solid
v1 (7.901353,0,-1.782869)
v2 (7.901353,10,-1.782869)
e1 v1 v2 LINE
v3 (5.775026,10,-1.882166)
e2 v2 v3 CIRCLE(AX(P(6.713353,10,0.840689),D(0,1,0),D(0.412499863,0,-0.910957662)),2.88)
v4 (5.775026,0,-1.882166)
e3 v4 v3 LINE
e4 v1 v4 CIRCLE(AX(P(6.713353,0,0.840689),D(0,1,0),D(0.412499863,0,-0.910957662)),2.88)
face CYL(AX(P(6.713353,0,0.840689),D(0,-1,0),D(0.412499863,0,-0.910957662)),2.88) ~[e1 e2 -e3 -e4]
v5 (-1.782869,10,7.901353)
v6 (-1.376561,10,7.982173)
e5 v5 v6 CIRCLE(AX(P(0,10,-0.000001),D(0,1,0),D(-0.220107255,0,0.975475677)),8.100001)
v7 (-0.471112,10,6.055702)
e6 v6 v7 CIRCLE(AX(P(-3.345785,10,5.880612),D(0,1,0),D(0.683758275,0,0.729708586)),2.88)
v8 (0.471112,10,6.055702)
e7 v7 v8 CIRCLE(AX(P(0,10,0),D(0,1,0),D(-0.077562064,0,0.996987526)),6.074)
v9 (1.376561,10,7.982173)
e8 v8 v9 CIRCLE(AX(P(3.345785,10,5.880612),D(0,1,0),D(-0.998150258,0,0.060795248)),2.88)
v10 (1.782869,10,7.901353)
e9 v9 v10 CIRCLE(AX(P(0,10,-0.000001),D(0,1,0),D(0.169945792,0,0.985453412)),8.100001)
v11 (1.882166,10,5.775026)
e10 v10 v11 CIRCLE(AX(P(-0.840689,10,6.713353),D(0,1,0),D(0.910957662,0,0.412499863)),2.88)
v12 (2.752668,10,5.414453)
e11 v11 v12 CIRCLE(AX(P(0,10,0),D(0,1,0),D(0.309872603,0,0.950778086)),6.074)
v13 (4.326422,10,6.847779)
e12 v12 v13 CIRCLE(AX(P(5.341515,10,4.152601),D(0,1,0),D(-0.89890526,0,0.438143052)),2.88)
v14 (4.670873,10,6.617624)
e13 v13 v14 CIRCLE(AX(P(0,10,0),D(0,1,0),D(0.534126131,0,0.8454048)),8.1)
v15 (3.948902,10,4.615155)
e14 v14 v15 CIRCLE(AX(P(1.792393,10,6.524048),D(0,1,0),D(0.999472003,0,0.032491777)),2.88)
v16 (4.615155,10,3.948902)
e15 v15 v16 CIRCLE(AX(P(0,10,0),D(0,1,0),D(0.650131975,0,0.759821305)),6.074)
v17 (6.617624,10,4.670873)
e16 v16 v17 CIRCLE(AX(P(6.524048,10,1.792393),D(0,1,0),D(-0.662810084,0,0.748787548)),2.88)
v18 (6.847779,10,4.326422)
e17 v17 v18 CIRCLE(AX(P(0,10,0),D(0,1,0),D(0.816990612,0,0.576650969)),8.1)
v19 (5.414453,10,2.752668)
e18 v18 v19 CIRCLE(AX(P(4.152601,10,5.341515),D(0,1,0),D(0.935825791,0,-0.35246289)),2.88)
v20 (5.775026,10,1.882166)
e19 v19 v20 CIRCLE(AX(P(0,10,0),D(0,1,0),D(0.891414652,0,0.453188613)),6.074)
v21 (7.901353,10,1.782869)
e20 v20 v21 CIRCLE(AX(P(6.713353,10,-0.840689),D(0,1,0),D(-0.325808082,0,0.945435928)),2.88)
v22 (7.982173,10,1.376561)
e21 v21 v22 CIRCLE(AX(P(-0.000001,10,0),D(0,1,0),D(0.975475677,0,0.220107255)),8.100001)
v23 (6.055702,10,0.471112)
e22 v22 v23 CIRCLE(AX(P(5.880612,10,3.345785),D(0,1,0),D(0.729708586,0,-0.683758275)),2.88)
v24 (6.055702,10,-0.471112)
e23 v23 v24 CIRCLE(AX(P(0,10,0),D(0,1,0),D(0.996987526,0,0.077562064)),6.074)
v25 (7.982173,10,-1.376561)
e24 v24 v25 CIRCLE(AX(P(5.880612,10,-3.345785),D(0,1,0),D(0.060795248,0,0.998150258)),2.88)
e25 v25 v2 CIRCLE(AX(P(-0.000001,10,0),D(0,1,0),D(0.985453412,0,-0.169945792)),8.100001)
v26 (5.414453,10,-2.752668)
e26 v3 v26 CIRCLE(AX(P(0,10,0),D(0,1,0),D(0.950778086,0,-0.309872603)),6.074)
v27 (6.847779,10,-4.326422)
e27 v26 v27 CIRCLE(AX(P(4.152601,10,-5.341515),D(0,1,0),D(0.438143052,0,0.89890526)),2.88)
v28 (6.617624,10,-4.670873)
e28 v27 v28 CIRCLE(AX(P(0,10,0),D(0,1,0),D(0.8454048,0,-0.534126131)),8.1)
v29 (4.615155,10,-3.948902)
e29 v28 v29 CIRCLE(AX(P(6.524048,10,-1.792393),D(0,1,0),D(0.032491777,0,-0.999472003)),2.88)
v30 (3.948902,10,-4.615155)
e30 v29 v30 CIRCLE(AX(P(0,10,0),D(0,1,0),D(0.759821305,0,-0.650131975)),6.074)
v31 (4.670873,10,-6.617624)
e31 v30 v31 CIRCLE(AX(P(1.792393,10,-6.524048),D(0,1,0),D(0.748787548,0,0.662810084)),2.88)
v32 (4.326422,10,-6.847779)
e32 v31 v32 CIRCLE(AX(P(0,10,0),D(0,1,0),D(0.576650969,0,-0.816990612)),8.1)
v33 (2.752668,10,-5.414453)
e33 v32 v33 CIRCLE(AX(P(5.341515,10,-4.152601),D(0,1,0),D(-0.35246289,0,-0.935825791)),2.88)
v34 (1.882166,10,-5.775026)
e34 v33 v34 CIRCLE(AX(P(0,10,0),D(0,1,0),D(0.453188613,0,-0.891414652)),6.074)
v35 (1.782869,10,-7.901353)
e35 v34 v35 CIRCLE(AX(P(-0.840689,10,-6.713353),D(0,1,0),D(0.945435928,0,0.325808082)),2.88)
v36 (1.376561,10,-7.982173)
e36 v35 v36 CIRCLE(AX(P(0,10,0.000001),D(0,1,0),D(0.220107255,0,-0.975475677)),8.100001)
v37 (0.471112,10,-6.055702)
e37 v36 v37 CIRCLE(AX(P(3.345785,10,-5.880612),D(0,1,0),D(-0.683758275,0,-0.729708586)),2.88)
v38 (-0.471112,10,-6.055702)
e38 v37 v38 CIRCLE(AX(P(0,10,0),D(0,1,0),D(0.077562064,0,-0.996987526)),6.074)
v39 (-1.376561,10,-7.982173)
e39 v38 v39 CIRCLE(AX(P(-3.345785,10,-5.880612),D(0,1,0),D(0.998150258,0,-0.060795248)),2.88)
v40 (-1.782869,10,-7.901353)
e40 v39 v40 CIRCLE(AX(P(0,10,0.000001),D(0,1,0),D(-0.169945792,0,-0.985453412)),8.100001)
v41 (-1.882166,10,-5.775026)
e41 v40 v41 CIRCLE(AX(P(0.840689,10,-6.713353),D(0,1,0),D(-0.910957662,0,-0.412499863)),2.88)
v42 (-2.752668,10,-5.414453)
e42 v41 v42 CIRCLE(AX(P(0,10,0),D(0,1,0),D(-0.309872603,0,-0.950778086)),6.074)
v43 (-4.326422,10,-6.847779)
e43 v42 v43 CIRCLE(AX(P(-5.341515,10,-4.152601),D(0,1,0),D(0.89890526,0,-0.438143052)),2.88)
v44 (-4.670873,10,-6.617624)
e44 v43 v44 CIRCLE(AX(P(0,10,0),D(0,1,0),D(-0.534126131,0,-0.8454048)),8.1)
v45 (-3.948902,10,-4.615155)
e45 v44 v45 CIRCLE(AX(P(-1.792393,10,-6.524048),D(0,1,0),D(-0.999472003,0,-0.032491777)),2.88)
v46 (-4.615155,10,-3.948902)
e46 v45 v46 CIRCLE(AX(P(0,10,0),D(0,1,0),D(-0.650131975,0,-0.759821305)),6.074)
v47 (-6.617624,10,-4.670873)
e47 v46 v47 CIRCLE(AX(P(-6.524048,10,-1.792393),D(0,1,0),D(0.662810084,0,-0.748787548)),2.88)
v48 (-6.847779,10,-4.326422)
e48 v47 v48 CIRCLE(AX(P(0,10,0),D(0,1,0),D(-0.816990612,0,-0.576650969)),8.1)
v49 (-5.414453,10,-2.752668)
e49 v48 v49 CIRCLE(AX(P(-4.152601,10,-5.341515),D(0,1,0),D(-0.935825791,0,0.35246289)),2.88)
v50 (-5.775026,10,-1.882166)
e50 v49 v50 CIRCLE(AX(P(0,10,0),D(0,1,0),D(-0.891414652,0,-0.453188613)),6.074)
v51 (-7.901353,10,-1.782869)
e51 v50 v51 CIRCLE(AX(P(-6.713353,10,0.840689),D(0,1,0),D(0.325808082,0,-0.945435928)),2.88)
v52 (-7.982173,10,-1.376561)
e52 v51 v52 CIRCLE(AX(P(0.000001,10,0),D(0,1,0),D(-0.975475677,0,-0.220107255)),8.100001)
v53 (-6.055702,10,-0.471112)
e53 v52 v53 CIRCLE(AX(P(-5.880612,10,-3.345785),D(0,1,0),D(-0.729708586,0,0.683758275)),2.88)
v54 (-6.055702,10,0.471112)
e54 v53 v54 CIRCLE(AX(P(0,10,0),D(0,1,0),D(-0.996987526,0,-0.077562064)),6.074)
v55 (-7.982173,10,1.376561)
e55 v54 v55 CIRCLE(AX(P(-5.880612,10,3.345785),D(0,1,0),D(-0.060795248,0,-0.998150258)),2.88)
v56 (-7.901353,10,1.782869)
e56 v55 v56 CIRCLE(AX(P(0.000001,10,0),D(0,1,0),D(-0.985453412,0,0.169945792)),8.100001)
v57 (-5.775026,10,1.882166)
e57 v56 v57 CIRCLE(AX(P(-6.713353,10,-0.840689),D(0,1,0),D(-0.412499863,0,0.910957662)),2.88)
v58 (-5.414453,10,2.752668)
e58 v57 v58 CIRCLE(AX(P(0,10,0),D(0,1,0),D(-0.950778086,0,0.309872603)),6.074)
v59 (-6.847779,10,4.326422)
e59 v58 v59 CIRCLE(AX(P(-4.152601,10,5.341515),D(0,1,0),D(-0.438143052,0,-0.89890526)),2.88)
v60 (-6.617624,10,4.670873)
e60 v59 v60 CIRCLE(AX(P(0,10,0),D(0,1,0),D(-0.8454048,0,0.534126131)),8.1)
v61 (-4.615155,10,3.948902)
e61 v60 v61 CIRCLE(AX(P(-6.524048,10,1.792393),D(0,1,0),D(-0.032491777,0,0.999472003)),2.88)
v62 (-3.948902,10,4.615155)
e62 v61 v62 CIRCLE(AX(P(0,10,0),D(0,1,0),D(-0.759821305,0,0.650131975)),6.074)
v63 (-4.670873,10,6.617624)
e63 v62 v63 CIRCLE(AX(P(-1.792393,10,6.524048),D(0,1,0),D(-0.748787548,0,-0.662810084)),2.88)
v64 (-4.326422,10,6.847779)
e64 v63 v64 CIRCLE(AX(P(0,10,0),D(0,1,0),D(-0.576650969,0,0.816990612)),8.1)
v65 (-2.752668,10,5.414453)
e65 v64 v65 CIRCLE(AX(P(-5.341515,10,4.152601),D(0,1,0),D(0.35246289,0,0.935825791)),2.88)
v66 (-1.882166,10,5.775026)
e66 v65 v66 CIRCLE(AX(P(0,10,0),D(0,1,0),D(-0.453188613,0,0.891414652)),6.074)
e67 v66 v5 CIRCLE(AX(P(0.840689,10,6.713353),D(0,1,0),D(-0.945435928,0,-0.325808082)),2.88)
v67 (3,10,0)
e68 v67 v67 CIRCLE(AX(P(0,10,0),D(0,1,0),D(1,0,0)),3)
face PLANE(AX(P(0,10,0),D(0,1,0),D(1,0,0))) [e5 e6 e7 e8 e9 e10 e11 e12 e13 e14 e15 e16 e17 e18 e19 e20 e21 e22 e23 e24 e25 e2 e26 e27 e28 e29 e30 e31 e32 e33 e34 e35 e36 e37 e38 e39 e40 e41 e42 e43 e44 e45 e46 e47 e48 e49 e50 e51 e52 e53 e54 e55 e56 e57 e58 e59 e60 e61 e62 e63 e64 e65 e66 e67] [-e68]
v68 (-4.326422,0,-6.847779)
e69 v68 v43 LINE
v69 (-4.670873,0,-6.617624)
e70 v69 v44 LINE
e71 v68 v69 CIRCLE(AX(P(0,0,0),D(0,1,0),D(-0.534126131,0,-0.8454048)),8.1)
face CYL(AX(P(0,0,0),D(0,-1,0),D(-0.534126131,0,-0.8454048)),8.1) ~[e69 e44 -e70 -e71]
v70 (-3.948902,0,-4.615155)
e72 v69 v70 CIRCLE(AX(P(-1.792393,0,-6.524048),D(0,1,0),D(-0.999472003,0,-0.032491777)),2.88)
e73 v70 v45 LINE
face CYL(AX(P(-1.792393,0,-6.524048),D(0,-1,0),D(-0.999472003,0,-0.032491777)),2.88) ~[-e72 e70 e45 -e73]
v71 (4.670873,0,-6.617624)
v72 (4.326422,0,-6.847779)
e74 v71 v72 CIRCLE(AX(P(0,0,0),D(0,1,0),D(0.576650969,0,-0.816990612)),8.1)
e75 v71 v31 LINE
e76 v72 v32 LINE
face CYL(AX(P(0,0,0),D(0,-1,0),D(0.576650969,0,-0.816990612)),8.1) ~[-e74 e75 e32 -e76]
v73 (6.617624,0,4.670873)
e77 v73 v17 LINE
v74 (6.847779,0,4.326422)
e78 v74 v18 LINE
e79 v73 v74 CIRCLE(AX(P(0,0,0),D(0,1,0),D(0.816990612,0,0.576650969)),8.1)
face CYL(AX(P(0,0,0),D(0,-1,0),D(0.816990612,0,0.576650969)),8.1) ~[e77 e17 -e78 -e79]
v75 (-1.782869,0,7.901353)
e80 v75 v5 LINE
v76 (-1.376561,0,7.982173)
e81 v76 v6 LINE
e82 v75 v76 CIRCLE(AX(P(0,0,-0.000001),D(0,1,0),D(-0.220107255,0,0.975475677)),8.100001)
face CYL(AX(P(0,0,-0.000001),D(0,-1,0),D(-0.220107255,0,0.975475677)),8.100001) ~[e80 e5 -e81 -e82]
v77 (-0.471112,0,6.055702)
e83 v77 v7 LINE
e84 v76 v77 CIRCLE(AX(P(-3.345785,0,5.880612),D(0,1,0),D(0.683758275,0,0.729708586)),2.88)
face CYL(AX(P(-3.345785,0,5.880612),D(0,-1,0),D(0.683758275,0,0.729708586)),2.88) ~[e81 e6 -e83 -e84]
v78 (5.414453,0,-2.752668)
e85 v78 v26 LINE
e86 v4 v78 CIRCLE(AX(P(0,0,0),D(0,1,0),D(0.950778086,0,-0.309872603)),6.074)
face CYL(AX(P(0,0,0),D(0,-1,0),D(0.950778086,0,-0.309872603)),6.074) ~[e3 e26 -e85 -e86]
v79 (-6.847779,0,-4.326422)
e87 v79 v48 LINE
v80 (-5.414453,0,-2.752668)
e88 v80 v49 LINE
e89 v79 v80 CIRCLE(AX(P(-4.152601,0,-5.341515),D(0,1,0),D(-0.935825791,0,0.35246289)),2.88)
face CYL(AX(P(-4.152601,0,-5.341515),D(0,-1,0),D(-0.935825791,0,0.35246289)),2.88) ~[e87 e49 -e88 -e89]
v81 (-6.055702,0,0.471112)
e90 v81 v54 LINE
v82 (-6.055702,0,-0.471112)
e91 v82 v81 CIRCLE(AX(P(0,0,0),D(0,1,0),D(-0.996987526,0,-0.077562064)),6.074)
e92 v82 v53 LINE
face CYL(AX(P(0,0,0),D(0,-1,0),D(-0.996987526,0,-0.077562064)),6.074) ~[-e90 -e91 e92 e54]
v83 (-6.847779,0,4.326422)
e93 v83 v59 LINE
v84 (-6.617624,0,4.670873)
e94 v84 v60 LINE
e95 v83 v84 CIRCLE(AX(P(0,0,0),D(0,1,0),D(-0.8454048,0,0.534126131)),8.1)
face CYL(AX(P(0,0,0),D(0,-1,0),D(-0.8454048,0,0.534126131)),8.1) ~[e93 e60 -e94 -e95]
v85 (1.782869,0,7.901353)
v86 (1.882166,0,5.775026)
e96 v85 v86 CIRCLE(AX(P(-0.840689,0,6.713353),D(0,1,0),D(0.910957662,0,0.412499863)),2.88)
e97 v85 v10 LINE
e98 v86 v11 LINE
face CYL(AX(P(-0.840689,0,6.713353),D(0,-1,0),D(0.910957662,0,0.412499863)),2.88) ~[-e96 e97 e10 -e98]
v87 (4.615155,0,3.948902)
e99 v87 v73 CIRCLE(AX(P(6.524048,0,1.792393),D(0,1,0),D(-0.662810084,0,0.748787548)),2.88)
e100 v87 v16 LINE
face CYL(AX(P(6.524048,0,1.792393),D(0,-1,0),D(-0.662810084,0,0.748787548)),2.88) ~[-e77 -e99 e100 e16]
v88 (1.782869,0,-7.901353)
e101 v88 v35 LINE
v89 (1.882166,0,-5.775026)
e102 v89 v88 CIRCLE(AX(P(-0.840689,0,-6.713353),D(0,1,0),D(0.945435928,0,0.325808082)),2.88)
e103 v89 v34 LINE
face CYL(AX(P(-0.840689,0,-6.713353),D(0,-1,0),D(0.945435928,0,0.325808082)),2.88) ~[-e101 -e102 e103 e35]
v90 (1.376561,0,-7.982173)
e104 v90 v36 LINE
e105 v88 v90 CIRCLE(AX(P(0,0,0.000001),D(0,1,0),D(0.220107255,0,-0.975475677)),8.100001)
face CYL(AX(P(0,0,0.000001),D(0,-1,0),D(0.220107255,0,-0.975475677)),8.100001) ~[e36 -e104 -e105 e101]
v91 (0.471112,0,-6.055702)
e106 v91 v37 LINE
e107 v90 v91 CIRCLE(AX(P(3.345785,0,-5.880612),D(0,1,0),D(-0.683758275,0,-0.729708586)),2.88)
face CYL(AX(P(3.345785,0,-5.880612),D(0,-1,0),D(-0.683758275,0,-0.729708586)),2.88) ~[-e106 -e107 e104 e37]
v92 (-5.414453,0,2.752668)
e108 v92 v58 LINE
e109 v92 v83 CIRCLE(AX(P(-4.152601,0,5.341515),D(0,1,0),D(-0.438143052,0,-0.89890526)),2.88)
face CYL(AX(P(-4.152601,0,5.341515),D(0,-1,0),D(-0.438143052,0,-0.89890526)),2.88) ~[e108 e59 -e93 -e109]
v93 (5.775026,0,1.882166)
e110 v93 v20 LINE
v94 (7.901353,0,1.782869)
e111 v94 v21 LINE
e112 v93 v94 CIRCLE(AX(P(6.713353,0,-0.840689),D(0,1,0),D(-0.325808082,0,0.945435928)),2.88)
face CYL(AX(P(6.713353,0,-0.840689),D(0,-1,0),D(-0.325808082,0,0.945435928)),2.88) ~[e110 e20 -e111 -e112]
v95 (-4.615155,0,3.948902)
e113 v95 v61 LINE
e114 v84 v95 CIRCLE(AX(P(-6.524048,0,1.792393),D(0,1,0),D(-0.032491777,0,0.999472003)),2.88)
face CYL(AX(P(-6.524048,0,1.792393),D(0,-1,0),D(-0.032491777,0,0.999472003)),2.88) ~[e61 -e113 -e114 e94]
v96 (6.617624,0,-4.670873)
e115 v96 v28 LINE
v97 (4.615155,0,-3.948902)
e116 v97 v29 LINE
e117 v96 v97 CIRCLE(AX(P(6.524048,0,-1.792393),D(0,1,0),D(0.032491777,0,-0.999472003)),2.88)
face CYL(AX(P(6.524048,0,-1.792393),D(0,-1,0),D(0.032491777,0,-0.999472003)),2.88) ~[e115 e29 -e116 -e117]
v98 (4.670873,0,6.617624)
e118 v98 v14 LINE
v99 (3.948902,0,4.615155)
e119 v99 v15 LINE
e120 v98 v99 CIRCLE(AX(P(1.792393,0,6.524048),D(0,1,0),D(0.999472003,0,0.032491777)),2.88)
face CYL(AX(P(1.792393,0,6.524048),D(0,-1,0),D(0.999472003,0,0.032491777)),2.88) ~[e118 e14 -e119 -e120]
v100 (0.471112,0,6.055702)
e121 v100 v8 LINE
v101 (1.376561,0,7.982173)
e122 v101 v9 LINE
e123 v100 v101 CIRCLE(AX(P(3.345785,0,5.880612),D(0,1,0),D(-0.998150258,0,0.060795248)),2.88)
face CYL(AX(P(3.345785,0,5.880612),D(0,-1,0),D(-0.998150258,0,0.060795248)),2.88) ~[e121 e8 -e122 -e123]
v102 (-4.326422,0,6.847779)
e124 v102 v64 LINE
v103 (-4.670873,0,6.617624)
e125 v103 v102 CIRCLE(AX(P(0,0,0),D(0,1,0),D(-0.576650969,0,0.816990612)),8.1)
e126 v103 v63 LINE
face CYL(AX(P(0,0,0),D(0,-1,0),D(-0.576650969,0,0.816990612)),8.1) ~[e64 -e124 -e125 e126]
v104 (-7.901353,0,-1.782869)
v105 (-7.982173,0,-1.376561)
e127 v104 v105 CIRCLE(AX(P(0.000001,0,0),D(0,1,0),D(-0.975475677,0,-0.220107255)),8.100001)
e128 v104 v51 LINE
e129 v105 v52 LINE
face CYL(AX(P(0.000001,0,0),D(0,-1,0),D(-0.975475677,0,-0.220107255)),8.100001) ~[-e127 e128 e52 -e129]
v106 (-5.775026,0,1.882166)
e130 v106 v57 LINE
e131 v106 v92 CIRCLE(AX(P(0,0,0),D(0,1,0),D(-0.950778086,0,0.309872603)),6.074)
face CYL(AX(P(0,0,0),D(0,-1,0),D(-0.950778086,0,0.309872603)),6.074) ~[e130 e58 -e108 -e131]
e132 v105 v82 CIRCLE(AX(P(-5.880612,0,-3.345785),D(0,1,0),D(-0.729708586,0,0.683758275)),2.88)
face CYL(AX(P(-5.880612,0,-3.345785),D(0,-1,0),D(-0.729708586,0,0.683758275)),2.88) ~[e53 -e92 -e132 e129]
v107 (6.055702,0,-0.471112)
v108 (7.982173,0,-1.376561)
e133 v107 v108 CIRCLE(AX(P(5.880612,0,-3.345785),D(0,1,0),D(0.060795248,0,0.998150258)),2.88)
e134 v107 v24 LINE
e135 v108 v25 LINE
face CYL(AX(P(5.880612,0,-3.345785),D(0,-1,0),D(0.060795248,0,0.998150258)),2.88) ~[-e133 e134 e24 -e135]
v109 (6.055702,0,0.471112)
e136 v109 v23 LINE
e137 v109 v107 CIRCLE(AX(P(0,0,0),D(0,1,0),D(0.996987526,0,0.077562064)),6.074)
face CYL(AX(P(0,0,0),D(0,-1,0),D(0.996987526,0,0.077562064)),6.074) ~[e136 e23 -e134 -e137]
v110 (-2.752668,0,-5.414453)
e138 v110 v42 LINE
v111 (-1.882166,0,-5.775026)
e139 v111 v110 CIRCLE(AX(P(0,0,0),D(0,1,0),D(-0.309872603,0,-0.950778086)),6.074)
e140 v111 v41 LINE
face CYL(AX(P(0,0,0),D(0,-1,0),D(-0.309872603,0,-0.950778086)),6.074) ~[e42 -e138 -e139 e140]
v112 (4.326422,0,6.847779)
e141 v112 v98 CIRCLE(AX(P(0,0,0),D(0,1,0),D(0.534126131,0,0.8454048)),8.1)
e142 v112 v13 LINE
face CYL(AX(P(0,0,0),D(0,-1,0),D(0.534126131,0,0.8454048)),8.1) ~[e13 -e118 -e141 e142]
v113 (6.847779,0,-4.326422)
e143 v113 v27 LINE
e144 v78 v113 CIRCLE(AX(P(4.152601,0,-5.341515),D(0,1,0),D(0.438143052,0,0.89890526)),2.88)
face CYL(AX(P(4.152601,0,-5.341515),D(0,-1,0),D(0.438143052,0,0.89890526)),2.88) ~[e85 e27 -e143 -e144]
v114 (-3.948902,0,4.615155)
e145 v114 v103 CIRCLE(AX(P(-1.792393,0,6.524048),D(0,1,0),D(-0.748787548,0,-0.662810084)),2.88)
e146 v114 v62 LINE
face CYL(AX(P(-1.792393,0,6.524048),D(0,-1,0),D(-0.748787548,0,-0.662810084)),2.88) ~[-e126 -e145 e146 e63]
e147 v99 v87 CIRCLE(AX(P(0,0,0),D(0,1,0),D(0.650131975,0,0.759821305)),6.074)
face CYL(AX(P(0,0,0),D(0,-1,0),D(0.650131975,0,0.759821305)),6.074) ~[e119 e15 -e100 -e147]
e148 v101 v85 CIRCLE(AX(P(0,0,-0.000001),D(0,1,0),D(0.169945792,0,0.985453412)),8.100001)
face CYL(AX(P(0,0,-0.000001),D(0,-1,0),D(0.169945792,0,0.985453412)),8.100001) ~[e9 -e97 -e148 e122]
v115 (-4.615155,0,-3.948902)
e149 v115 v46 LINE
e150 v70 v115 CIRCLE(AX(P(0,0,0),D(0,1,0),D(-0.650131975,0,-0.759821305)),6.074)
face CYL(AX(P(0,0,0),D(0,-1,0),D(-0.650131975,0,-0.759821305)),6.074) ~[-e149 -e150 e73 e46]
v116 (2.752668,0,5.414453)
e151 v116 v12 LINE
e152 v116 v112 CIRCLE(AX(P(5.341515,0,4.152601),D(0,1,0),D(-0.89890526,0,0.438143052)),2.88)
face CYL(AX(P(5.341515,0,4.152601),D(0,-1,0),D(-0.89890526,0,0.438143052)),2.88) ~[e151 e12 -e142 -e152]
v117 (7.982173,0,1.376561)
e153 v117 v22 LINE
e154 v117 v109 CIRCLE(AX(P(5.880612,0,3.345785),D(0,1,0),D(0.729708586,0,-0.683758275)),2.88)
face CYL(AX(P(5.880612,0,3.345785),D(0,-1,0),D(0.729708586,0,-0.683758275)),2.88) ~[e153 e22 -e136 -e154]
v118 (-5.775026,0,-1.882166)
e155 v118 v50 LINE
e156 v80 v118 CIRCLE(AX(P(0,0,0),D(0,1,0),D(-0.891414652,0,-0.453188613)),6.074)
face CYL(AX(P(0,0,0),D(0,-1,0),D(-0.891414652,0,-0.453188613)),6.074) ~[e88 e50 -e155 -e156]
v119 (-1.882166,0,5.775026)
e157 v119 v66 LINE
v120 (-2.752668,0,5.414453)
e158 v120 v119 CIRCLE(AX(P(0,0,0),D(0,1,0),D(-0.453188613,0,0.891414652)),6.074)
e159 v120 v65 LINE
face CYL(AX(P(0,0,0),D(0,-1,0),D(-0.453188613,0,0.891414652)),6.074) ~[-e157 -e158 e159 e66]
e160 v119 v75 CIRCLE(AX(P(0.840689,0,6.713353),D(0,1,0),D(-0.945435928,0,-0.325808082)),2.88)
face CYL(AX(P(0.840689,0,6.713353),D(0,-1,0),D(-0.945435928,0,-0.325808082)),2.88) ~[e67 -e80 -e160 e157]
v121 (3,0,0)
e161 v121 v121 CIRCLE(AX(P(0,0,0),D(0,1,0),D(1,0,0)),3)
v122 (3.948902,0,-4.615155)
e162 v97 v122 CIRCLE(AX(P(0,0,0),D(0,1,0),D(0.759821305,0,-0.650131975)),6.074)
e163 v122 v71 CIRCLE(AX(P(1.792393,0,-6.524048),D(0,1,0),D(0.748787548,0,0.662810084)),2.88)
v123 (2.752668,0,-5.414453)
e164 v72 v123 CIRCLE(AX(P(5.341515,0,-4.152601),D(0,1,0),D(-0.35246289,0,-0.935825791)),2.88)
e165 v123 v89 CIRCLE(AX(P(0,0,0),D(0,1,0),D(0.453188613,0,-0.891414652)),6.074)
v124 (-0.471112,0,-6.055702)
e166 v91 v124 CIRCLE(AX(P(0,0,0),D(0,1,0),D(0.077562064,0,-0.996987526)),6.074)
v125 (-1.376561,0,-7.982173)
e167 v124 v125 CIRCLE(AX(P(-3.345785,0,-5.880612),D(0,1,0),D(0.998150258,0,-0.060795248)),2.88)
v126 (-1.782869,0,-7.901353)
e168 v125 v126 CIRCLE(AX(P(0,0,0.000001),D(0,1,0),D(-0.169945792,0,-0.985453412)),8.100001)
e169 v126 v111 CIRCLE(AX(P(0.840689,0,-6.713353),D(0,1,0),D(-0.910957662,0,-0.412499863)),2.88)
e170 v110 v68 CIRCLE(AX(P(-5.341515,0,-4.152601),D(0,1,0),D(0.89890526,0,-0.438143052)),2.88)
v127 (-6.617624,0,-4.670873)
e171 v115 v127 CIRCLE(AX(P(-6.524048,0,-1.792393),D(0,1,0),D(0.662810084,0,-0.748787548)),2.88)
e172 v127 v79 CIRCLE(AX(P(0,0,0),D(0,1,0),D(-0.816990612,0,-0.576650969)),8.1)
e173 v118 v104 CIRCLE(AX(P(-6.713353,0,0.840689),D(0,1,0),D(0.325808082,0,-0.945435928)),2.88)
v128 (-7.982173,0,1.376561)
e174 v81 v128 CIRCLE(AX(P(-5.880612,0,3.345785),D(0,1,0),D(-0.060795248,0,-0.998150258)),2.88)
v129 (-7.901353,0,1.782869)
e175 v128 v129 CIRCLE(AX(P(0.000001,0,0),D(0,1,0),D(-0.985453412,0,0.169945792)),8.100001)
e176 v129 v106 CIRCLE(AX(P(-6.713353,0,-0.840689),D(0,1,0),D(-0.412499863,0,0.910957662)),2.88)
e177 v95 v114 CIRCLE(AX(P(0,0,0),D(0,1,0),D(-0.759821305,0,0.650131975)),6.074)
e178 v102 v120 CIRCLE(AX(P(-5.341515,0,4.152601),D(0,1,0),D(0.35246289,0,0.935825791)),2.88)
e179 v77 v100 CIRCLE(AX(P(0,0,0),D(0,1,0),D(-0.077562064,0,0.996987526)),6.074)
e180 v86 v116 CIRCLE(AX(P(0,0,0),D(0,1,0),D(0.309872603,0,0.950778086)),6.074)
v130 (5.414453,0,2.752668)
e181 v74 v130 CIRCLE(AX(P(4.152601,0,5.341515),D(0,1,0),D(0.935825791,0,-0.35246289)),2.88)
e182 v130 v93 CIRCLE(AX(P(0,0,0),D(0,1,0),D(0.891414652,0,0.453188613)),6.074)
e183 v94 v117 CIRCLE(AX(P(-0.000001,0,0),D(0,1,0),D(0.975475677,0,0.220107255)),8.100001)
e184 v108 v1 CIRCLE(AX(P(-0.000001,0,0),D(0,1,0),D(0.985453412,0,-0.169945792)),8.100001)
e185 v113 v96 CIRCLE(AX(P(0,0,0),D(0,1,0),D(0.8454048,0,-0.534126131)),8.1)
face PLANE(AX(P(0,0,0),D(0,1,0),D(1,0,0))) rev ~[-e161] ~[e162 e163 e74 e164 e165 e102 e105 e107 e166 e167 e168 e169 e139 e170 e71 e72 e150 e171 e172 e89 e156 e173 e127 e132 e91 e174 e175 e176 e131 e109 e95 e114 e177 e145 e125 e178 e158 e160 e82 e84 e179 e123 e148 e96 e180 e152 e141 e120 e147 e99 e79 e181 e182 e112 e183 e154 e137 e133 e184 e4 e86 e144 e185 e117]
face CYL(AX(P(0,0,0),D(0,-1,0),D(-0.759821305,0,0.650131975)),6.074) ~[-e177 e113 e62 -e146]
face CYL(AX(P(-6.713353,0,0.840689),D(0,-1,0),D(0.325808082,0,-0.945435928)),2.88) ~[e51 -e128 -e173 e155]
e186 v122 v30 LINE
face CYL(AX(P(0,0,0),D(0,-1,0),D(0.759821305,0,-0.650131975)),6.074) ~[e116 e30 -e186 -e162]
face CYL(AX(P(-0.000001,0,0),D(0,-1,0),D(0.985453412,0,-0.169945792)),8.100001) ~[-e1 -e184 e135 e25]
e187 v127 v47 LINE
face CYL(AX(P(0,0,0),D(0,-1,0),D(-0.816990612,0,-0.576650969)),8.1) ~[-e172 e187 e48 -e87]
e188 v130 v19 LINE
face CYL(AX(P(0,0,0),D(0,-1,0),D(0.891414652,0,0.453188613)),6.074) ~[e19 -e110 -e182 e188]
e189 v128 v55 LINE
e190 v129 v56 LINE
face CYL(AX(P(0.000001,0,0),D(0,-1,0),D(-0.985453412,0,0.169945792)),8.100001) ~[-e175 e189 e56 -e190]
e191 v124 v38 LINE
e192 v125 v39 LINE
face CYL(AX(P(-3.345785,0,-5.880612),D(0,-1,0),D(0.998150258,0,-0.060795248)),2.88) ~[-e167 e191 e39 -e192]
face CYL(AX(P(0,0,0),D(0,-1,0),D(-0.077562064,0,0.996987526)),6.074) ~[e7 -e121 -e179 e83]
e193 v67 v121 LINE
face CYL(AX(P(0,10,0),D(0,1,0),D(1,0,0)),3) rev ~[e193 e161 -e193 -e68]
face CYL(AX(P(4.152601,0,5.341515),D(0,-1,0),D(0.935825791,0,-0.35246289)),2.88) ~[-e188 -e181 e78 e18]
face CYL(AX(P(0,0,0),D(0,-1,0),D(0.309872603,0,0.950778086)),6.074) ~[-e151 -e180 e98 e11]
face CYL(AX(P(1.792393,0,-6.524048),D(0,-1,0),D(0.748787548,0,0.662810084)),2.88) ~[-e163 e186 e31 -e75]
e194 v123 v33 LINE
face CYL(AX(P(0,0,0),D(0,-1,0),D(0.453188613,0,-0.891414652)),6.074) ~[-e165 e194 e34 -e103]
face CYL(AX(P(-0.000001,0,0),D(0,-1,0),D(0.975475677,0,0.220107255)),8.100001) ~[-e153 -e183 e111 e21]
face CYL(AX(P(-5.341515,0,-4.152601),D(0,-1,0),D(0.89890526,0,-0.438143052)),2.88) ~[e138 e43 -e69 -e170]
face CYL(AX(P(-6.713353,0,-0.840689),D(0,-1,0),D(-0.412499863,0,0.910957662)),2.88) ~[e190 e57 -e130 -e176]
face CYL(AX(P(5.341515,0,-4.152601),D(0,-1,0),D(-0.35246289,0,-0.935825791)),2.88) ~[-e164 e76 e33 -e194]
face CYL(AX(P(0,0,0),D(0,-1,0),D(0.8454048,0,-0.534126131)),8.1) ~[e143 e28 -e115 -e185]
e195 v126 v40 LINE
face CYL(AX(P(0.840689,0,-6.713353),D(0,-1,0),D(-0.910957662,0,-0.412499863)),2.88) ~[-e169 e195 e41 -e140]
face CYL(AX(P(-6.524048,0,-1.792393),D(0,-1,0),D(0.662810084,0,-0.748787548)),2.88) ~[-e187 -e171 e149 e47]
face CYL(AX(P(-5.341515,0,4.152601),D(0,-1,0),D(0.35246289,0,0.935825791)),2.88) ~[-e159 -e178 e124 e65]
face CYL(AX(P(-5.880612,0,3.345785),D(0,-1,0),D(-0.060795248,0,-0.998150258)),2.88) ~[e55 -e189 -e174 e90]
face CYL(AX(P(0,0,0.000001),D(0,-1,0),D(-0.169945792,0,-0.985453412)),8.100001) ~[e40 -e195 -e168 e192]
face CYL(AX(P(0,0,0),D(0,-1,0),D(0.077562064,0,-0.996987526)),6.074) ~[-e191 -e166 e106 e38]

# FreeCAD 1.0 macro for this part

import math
import FreeCAD as App
import Part
import Sketcher

V = App.Vector
Q = App.Units.Quantity

doc = App.newDocument("Part")
body = doc.addObject("PartDesign::Body", "Body")

# Sketch on XZ plane
sketch1 = body.newObject("Sketcher::SketchObject", "Sketch")
sketch1.AttachmentSupport = (doc.getObject("XZ_Plane"), [""])
sketch1.MapMode = "FlatFace"
sketch1.addGeometry(Part.ArcOfCircle(Part.Circle(V(-5.88, -3.35, 0), V(0, 0, 1), 2.88), math.radians(93), math.radians(137)), False)
sketch1.addGeometry(Part.ArcOfCircle(Part.Circle(V(0, 0, 0), V(0, 0, 1), 6.07), math.radians(175.55), math.radians(184.45)), False)
sketch1.addGeometry(Part.ArcOfCircle(Part.Circle(V(-5.88, 3.35, 0), V(0, 0, 1), 2.88), math.radians(-137), math.radians(-93)), False)
sketch1.addGeometry(Part.ArcOfCircle(Part.Circle(V(0, 0, 0), V(0, 0, 1), 8.1), math.radians(167.28), math.radians(170.22)), False)
sketch1.addGeometry(Part.ArcOfCircle(Part.Circle(V(-6.71, -0.84, 0), V(0, 0, 1), 2.88), math.radians(71), math.radians(114)), False)
sketch1.addGeometry(Part.ArcOfCircle(Part.Circle(V(0, 0, 0), V(0, 0, 1), 6.07), math.radians(153.05), math.radians(161.95)), False)
sketch1.addGeometry(Part.ArcOfCircle(Part.Circle(V(-4.15, 5.34, 0), V(0, 0, 1), 2.88), math.radians(-159), math.radians(-116)), False)
sketch1.addGeometry(Part.ArcOfCircle(Part.Circle(V(0, 0, 0), V(0, 0, 1), 8.1), math.radians(144.78), math.radians(147.72)), False)
sketch1.addGeometry(Part.ArcOfCircle(Part.Circle(V(-6.52, 1.79, 0), V(0, 0, 1), 2.88), math.radians(48), math.radians(92)), False)
sketch1.addGeometry(Part.ArcOfCircle(Part.Circle(V(0, 0, 0), V(0, 0, 1), 6.07), math.radians(130.55), math.radians(139.45)), False)
sketch1.addGeometry(Part.ArcOfCircle(Part.Circle(V(-1.79, 6.52, 0), V(0, 0, 1), 2.88), math.radians(178), math.radians(222)), False)
sketch1.addGeometry(Part.ArcOfCircle(Part.Circle(V(0, 0, 0), V(0, 0, 1), 8.1), math.radians(122.28), math.radians(125.22)), False)
sketch1.addGeometry(Part.ArcOfCircle(Part.Circle(V(-5.34, 4.15, 0), V(0, 0, 1), 2.88), math.radians(26), math.radians(69)), False)
sketch1.addGeometry(Part.ArcOfCircle(Part.Circle(V(0, 0, 0), V(0, 0, 1), 6.07), math.radians(108.05), math.radians(116.95)), False)
sketch1.addGeometry(Part.ArcOfCircle(Part.Circle(V(0.84, 6.71, 0), V(0, 0, 1), 2.88), math.radians(156), math.radians(199)), False)
sketch1.addGeometry(Part.ArcOfCircle(Part.Circle(V(0, 0, 0), V(0, 0, 1), 8.1), math.radians(99.78), math.radians(102.72)), False)
sketch1.addGeometry(Part.ArcOfCircle(Part.Circle(V(-3.35, 5.88, 0), V(0, 0, 1), 2.88), math.radians(3), math.radians(47)), False)
sketch1.addGeometry(Part.ArcOfCircle(Part.Circle(V(0, 0, 0), V(0, 0, 1), 6.07), math.radians(85.55), math.radians(94.45)), False)
sketch1.addGeometry(Part.ArcOfCircle(Part.Circle(V(3.35, 5.88, 0), V(0, 0, 1), 2.88), math.radians(133), math.radians(177)), False)
sketch1.addGeometry(Part.ArcOfCircle(Part.Circle(V(0, 0, 0), V(0, 0, 1), 8.1), math.radians(77.28), math.radians(80.22)), False)
sketch1.addGeometry(Part.ArcOfCircle(Part.Circle(V(-0.84, 6.71, 0), V(0, 0, 1), 2.88), math.radians(-19), math.radians(24)), False)
sketch1.addGeometry(Part.ArcOfCircle(Part.Circle(V(0, 0, 0), V(0, 0, 1), 6.07), math.radians(63.05), math.radians(71.95)), False)
sketch1.addGeometry(Part.ArcOfCircle(Part.Circle(V(5.34, 4.15, 0), V(0, 0, 1), 2.88), math.radians(111), math.radians(154)), False)
sketch1.addGeometry(Part.ArcOfCircle(Part.Circle(V(0, 0, 0), V(0, 0, 1), 8.1), math.radians(54.78), math.radians(57.72)), False)
sketch1.addGeometry(Part.ArcOfCircle(Part.Circle(V(1.79, 6.52, 0), V(0, 0, 1), 2.88), math.radians(-42), math.radians(2)), False)
sketch1.addGeometry(Part.ArcOfCircle(Part.Circle(V(0, 0, 0), V(0, 0, 1), 6.07), math.radians(40.55), math.radians(49.45)), False)
sketch1.addGeometry(Part.ArcOfCircle(Part.Circle(V(6.52, 1.79, 0), V(0, 0, 1), 2.88), math.radians(88), math.radians(132)), False)
sketch1.addGeometry(Part.ArcOfCircle(Part.Circle(V(0, 0, 0), V(0, 0, 1), 8.1), math.radians(32.28), math.radians(35.22)), False)
sketch1.addGeometry(Part.ArcOfCircle(Part.Circle(V(4.15, 5.34, 0), V(0, 0, 1), 2.88), math.radians(-64), math.radians(-21)), False)
sketch1.addGeometry(Part.ArcOfCircle(Part.Circle(V(0, 0, 0), V(0, 0, 1), 6.07), math.radians(18.05), math.radians(26.95)), False)
sketch1.addGeometry(Part.ArcOfCircle(Part.Circle(V(6.71, -0.84, 0), V(0, 0, 1), 2.88), math.radians(66), math.radians(109)), False)
sketch1.addGeometry(Part.ArcOfCircle(Part.Circle(V(0, 0, 0), V(0, 0, 1), 8.1), math.radians(9.78), math.radians(12.72)), False)
sketch1.addGeometry(Part.ArcOfCircle(Part.Circle(V(5.88, 3.35, 0), V(0, 0, 1), 2.88), math.radians(-87), math.radians(-43)), False)
sketch1.addGeometry(Part.ArcOfCircle(Part.Circle(V(0, 0, 0), V(0, 0, 1), 6.07), math.radians(-4.45), math.radians(4.45)), False)
sketch1.addGeometry(Part.ArcOfCircle(Part.Circle(V(5.88, -3.35, 0), V(0, 0, 1), 2.88), math.radians(43), math.radians(87)), False)
sketch1.addGeometry(Part.ArcOfCircle(Part.Circle(V(0, 0, 0), V(0, 0, 1), 8.1), math.radians(-12.72), math.radians(-9.78)), False)
sketch1.addGeometry(Part.ArcOfCircle(Part.Circle(V(6.71, 0.84, 0), V(0, 0, 1), 2.88), math.radians(-109), math.radians(-66)), False)
sketch1.addGeometry(Part.ArcOfCircle(Part.Circle(V(0, 0, 0), V(0, 0, 1), 6.07), math.radians(-26.95), math.radians(-18.05)), False)
sketch1.addGeometry(Part.ArcOfCircle(Part.Circle(V(4.15, -5.34, 0), V(0, 0, 1), 2.88), math.radians(21), math.radians(64)), False)
sketch1.addGeometry(Part.ArcOfCircle(Part.Circle(V(0, 0, 0), V(0, 0, 1), 8.1), math.radians(-35.22), math.radians(-32.28)), False)
sketch1.addGeometry(Part.ArcOfCircle(Part.Circle(V(6.52, -1.79, 0), V(0, 0, 1), 2.88), math.radians(-132), math.radians(-88)), False)
sketch1.addGeometry(Part.ArcOfCircle(Part.Circle(V(0, 0, 0), V(0, 0, 1), 6.07), math.radians(-49.45), math.radians(-40.55)), False)
sketch1.addGeometry(Part.ArcOfCircle(Part.Circle(V(1.79, -6.52, 0), V(0, 0, 1), 2.88), math.radians(-2), math.radians(42)), False)
sketch1.addGeometry(Part.ArcOfCircle(Part.Circle(V(0, 0, 0), V(0, 0, 1), 8.1), math.radians(-57.72), math.radians(-54.78)), False)
sketch1.addGeometry(Part.ArcOfCircle(Part.Circle(V(5.34, -4.15, 0), V(0, 0, 1), 2.88), math.radians(-154), math.radians(-111)), False)
sketch1.addGeometry(Part.ArcOfCircle(Part.Circle(V(0, 0, 0), V(0, 0, 1), 6.07), math.radians(-71.95), math.radians(-63.05)), False)
sketch1.addGeometry(Part.ArcOfCircle(Part.Circle(V(-0.84, -6.71, 0), V(0, 0, 1), 2.88), math.radians(-24), math.radians(19)), False)
sketch1.addGeometry(Part.ArcOfCircle(Part.Circle(V(0, 0, 0), V(0, 0, 1), 8.1), math.radians(-80.22), math.radians(-77.28)), False)
sketch1.addGeometry(Part.ArcOfCircle(Part.Circle(V(3.35, -5.88, 0), V(0, 0, 1), 2.88), math.radians(-177), math.radians(-133)), False)
sketch1.addGeometry(Part.ArcOfCircle(Part.Circle(V(0, 0, 0), V(0, 0, 1), 6.07), math.radians(-94.45), math.radians(-85.55)), False)
sketch1.addGeometry(Part.ArcOfCircle(Part.Circle(V(-3.35, -5.88, 0), V(0, 0, 1), 2.88), math.radians(-47), math.radians(-3)), False)
sketch1.addGeometry(Part.ArcOfCircle(Part.Circle(V(0, 0, 0), V(0, 0, 1), 8.1), math.radians(-102.72), math.radians(-99.78)), False)
sketch1.addGeometry(Part.ArcOfCircle(Part.Circle(V(0.84, -6.71, 0), V(0, 0, 1), 2.88), math.radians(161), math.radians(204)), False)
sketch1.addGeometry(Part.ArcOfCircle(Part.Circle(V(0, 0, 0), V(0, 0, 1), 6.07), math.radians(-116.95), math.radians(-108.05)), False)
sketch1.addGeometry(Part.ArcOfCircle(Part.Circle(V(-5.34, -4.15, 0), V(0, 0, 1), 2.88), math.radians(-69), math.radians(-26)), False)
sketch1.addGeometry(Part.ArcOfCircle(Part.Circle(V(0, 0, 0), V(0, 0, 1), 8.1), math.radians(-125.22), math.radians(-122.28)), False)
sketch1.addGeometry(Part.ArcOfCircle(Part.Circle(V(-1.79, -6.52, 0), V(0, 0, 1), 2.88), math.radians(138), math.radians(182)), False)
sketch1.addGeometry(Part.ArcOfCircle(Part.Circle(V(0, 0, 0), V(0, 0, 1), 6.07), math.radians(-139.45), math.radians(-130.55)), False)
sketch1.addGeometry(Part.ArcOfCircle(Part.Circle(V(-6.52, -1.79, 0), V(0, 0, 1), 2.88), math.radians(-92), math.radians(-48)), False)
sketch1.addGeometry(Part.ArcOfCircle(Part.Circle(V(0, 0, 0), V(0, 0, 1), 8.1), math.radians(-147.72), math.radians(-144.78)), False)
sketch1.addGeometry(Part.ArcOfCircle(Part.Circle(V(-4.15, -5.34, 0), V(0, 0, 1), 2.88), math.radians(116), math.radians(159)), False)
sketch1.addGeometry(Part.ArcOfCircle(Part.Circle(V(0, 0, 0), V(0, 0, 1), 6.07), math.radians(-161.95), math.radians(-153.05)), False)
sketch1.addGeometry(Part.ArcOfCircle(Part.Circle(V(-6.71, 0.84, 0), V(0, 0, 1), 2.88), math.radians(-114), math.radians(-71)), False)
sketch1.addGeometry(Part.ArcOfCircle(Part.Circle(V(0, 0, 0), V(0, 0, 1), 8.1), math.radians(-170.22), math.radians(-167.28)), False)
sketch1.addConstraint(Sketcher.Constraint("Coincident", 0, 1, 1, 2))
sketch1.addConstraint(Sketcher.Constraint("Coincident", 1, 1, 2, 2))
sketch1.addConstraint(Sketcher.Constraint("Coincident", 2, 1, 3, 2))
sketch1.addConstraint(Sketcher.Constraint("Coincident", 3, 1, 4, 2))
sketch1.addConstraint(Sketcher.Constraint("Coincident", 4, 1, 5, 2))
sketch1.addConstraint(Sketcher.Constraint("Coincident", 5, 1, 6, 2))
sketch1.addConstraint(Sketcher.Constraint("Coincident", 6, 1, 7, 2))
sketch1.addConstraint(Sketcher.Constraint("Coincident", 7, 1, 8, 2))
sketch1.addConstraint(Sketcher.Constraint("Coincident", 8, 1, 9, 2))
sketch1.addConstraint(Sketcher.Constraint("Coincident", 9, 1, 10, 2))
sketch1.addConstraint(Sketcher.Constraint("Coincident", 10, 1, 11, 2))
sketch1.addConstraint(Sketcher.Constraint("Coincident", 11, 1, 12, 2))
sketch1.addConstraint(Sketcher.Constraint("Coincident", 12, 1, 13, 2))
sketch1.addConstraint(Sketcher.Constraint("Coincident", 13, 1, 14, 2))
sketch1.addConstraint(Sketcher.Constraint("Coincident", 14, 1, 15, 2))
sketch1.addConstraint(Sketcher.Constraint("Coincident", 15, 1, 16, 2))
sketch1.addConstraint(Sketcher.Constraint("Coincident", 16, 1, 17, 2))
sketch1.addConstraint(Sketcher.Constraint("Coincident", 17, 1, 18, 2))
sketch1.addConstraint(Sketcher.Constraint("Coincident", 18, 1, 19, 2))
sketch1.addConstraint(Sketcher.Constraint("Coincident", 19, 1, 20, 2))
sketch1.addConstraint(Sketcher.Constraint("Coincident", 20, 1, 21, 2))
sketch1.addConstraint(Sketcher.Constraint("Coincident", 21, 1, 22, 2))
sketch1.addConstraint(Sketcher.Constraint("Coincident", 22, 1, 23, 2))
sketch1.addConstraint(Sketcher.Constraint("Coincident", 23, 1, 24, 2))
sketch1.addConstraint(Sketcher.Constraint("Coincident", 24, 1, 25, 2))
sketch1.addConstraint(Sketcher.Constraint("Coincident", 25, 1, 26, 2))
sketch1.addConstraint(Sketcher.Constraint("Coincident", 26, 1, 27, 2))
sketch1.addConstraint(Sketcher.Constraint("Coincident", 27, 1, 28, 2))
sketch1.addConstraint(Sketcher.Constraint("Coincident", 28, 1, 29, 2))
sketch1.addConstraint(Sketcher.Constraint("Coincident", 29, 1, 30, 2))
sketch1.addConstraint(Sketcher.Constraint("Coincident", 30, 1, 31, 2))
sketch1.addConstraint(Sketcher.Constraint("Coincident", 31, 1, 32, 2))
sketch1.addConstraint(Sketcher.Constraint("Coincident", 32, 1, 33, 2))
sketch1.addConstraint(Sketcher.Constraint("Coincident", 33, 1, 34, 2))
sketch1.addConstraint(Sketcher.Constraint("Coincident", 34, 1, 35, 2))
sketch1.addConstraint(Sketcher.Constraint("Coincident", 35, 1, 36, 2))
sketch1.addConstraint(Sketcher.Constraint("Coincident", 36, 1, 37, 2))
sketch1.addConstraint(Sketcher.Constraint("Coincident", 37, 1, 38, 2))
sketch1.addConstraint(Sketcher.Constraint("Coincident", 38, 1, 39, 2))
sketch1.addConstraint(Sketcher.Constraint("Coincident", 39, 1, 40, 2))
sketch1.addConstraint(Sketcher.Constraint("Coincident", 40, 1, 41, 2))
sketch1.addConstraint(Sketcher.Constraint("Coincident", 41, 1, 42, 2))
sketch1.addConstraint(Sketcher.Constraint("Coincident", 42, 1, 43, 2))
sketch1.addConstraint(Sketcher.Constraint("Coincident", 43, 1, 44, 2))
sketch1.addConstraint(Sketcher.Constraint("Coincident", 44, 1, 45, 2))
sketch1.addConstraint(Sketcher.Constraint("Coincident", 45, 1, 46, 2))
sketch1.addConstraint(Sketcher.Constraint("Coincident", 46, 1, 47, 2))
sketch1.addConstraint(Sketcher.Constraint("Coincident", 47, 1, 48, 2))
sketch1.addConstraint(Sketcher.Constraint("Coincident", 48, 1, 49, 2))
sketch1.addConstraint(Sketcher.Constraint("Coincident", 49, 1, 50, 2))
sketch1.addConstraint(Sketcher.Constraint("Coincident", 50, 1, 51, 2))
sketch1.addConstraint(Sketcher.Constraint("Coincident", 51, 1, 52, 2))
sketch1.addConstraint(Sketcher.Constraint("Coincident", 52, 1, 53, 2))
sketch1.addConstraint(Sketcher.Constraint("Coincident", 53, 1, 54, 2))
sketch1.addConstraint(Sketcher.Constraint("Coincident", 54, 1, 55, 2))
sketch1.addConstraint(Sketcher.Constraint("Coincident", 55, 1, 56, 2))
sketch1.addConstraint(Sketcher.Constraint("Coincident", 56, 1, 57, 2))
sketch1.addConstraint(Sketcher.Constraint("Coincident", 57, 1, 58, 2))
sketch1.addConstraint(Sketcher.Constraint("Coincident", 58, 1, 59, 2))
sketch1.addConstraint(Sketcher.Constraint("Coincident", 59, 1, 60, 2))
sketch1.addConstraint(Sketcher.Constraint("Coincident", 60, 1, 61, 2))
sketch1.addConstraint(Sketcher.Constraint("Coincident", 61, 1, 62, 2))
sketch1.addConstraint(Sketcher.Constraint("Coincident", 62, 1, 63, 2))
sketch1.addConstraint(Sketcher.Constraint("Coincident", 63, 1, 0, 2))
sketch1.addConstraint(Sketcher.Constraint("Coincident", 1, 3, -1, 1))
sketch1.addConstraint(Sketcher.Constraint("Coincident", 3, 3, -1, 1))
sketch1.addConstraint(Sketcher.Constraint("Coincident", 5, 3, -1, 1))
sketch1.addConstraint(Sketcher.Constraint("Coincident", 7, 3, -1, 1))
sketch1.addConstraint(Sketcher.Constraint("Coincident", 9, 3, -1, 1))
sketch1.addConstraint(Sketcher.Constraint("Coincident", 11, 3, -1, 1))
sketch1.addConstraint(Sketcher.Constraint("Coincident", 13, 3, -1, 1))
sketch1.addConstraint(Sketcher.Constraint("Coincident", 15, 3, -1, 1))
sketch1.addConstraint(Sketcher.Constraint("Coincident", 17, 3, -1, 1))
sketch1.addConstraint(Sketcher.Constraint("Coincident", 19, 3, -1, 1))
sketch1.addConstraint(Sketcher.Constraint("Coincident", 21, 3, -1, 1))
sketch1.addConstraint(Sketcher.Constraint("Coincident", 23, 3, -1, 1))
sketch1.addConstraint(Sketcher.Constraint("Coincident", 25, 3, -1, 1))
sketch1.addConstraint(Sketcher.Constraint("Coincident", 27, 3, -1, 1))
sketch1.addConstraint(Sketcher.Constraint("Coincident", 29, 3, -1, 1))
sketch1.addConstraint(Sketcher.Constraint("Coincident", 31, 3, -1, 1))
sketch1.addConstraint(Sketcher.Constraint("Coincident", 33, 3, -1, 1))
sketch1.addConstraint(Sketcher.Constraint("Coincident", 35, 3, -1, 1))
sketch1.addConstraint(Sketcher.Constraint("Coincident", 37, 3, -1, 1))
sketch1.addConstraint(Sketcher.Constraint("Coincident", 39, 3, -1, 1))
sketch1.addConstraint(Sketcher.Constraint("Coincident", 41, 3, -1, 1))
sketch1.addConstraint(Sketcher.Constraint("Coincident", 43, 3, -1, 1))
sketch1.addConstraint(Sketcher.Constraint("Coincident", 45, 3, -1, 1))
sketch1.addConstraint(Sketcher.Constraint("Coincident", 47, 3, -1, 1))
sketch1.addConstraint(Sketcher.Constraint("Coincident", 49, 3, -1, 1))
sketch1.addConstraint(Sketcher.Constraint("Coincident", 51, 3, -1, 1))
sketch1.addConstraint(Sketcher.Constraint("Coincident", 53, 3, -1, 1))
sketch1.addConstraint(Sketcher.Constraint("Coincident", 55, 3, -1, 1))
sketch1.addConstraint(Sketcher.Constraint("Coincident", 57, 3, -1, 1))
sketch1.addConstraint(Sketcher.Constraint("Coincident", 59, 3, -1, 1))
sketch1.addConstraint(Sketcher.Constraint("Coincident", 61, 3, -1, 1))
sketch1.addConstraint(Sketcher.Constraint("Coincident", 63, 3, -1, 1))
sketch1.addConstraint(Sketcher.Constraint("Equal", 0, 2))
sketch1.addConstraint(Sketcher.Constraint("Equal", 2, 4))
sketch1.addConstraint(Sketcher.Constraint("Equal", 1, 5))
sketch1.addConstraint(Sketcher.Constraint("Equal", 4, 6))
sketch1.addConstraint(Sketcher.Constraint("Equal", 3, 7))
sketch1.addConstraint(Sketcher.Constraint("Equal", 6, 8))
sketch1.addConstraint(Sketcher.Constraint("Equal", 5, 9))
sketch1.addConstraint(Sketcher.Constraint("Equal", 8, 10))
sketch1.addConstraint(Sketcher.Constraint("Equal", 7, 11))
sketch1.addConstraint(Sketcher.Constraint("Equal", 10, 12))
sketch1.addConstraint(Sketcher.Constraint("Equal", 9, 13))
sketch1.addConstraint(Sketcher.Constraint("Equal", 12, 14))
sketch1.addConstraint(Sketcher.Constraint("Equal", 11, 15))
sketch1.addConstraint(Sketcher.Constraint("Equal", 14, 16))
sketch1.addConstraint(Sketcher.Constraint("Equal", 13, 17))
sketch1.addConstraint(Sketcher.Constraint("Equal", 16, 18))
sketch1.addConstraint(Sketcher.Constraint("Equal", 15, 19))
sketch1.addConstraint(Sketcher.Constraint("Equal", 18, 20))
sketch1.addConstraint(Sketcher.Constraint("Equal", 17, 21))
sketch1.addConstraint(Sketcher.Constraint("Equal", 20, 22))
sketch1.addConstraint(Sketcher.Constraint("Equal", 19, 23))
sketch1.addConstraint(Sketcher.Constraint("Equal", 22, 24))
sketch1.addConstraint(Sketcher.Constraint("Equal", 21, 25))
sketch1.addConstraint(Sketcher.Constraint("Equal", 24, 26))
sketch1.addConstraint(Sketcher.Constraint("Equal", 23, 27))
sketch1.addConstraint(Sketcher.Constraint("Equal", 26, 28))
sketch1.addConstraint(Sketcher.Constraint("Equal", 25, 29))
sketch1.addConstraint(Sketcher.Constraint("Equal", 28, 30))
sketch1.addConstraint(Sketcher.Constraint("Equal", 27, 31))
sketch1.addConstraint(Sketcher.Constraint("Equal", 30, 32))
sketch1.addConstraint(Sketcher.Constraint("Equal", 29, 33))
sketch1.addConstraint(Sketcher.Constraint("Equal", 32, 34))
sketch1.addConstraint(Sketcher.Constraint("Equal", 31, 35))
sketch1.addConstraint(Sketcher.Constraint("Equal", 34, 36))
sketch1.addConstraint(Sketcher.Constraint("Equal", 33, 37))
sketch1.addConstraint(Sketcher.Constraint("Equal", 36, 38))
sketch1.addConstraint(Sketcher.Constraint("Equal", 35, 39))
sketch1.addConstraint(Sketcher.Constraint("Equal", 38, 40))
sketch1.addConstraint(Sketcher.Constraint("Equal", 37, 41))
sketch1.addConstraint(Sketcher.Constraint("Equal", 40, 42))
sketch1.addConstraint(Sketcher.Constraint("Equal", 39, 43))
sketch1.addConstraint(Sketcher.Constraint("Equal", 42, 44))
sketch1.addConstraint(Sketcher.Constraint("Equal", 41, 45))
sketch1.addConstraint(Sketcher.Constraint("Equal", 44, 46))
sketch1.addConstraint(Sketcher.Constraint("Equal", 43, 47))
sketch1.addConstraint(Sketcher.Constraint("Equal", 46, 48))
sketch1.addConstraint(Sketcher.Constraint("Equal", 45, 49))
sketch1.addConstraint(Sketcher.Constraint("Equal", 48, 50))
sketch1.addConstraint(Sketcher.Constraint("Equal", 47, 51))
sketch1.addConstraint(Sketcher.Constraint("Equal", 50, 52))
sketch1.addConstraint(Sketcher.Constraint("Equal", 49, 53))
sketch1.addConstraint(Sketcher.Constraint("Equal", 52, 54))
sketch1.addConstraint(Sketcher.Constraint("Equal", 51, 55))
sketch1.addConstraint(Sketcher.Constraint("Equal", 54, 56))
sketch1.addConstraint(Sketcher.Constraint("Equal", 53, 57))
sketch1.addConstraint(Sketcher.Constraint("Equal", 56, 58))
sketch1.addConstraint(Sketcher.Constraint("Equal", 55, 59))
sketch1.addConstraint(Sketcher.Constraint("Equal", 58, 60))
sketch1.addConstraint(Sketcher.Constraint("Equal", 57, 61))
sketch1.addConstraint(Sketcher.Constraint("Equal", 60, 62))
sketch1.addConstraint(Sketcher.Constraint("Equal", 59, 63))
sketch1.addConstraint(Sketcher.Constraint("Symmetric", 0, 3, 32, 3, -1, 1))
sketch1.addConstraint(Sketcher.Constraint("Symmetric", 2, 3, 34, 3, -1, 1))
sketch1.addConstraint(Sketcher.Constraint("Symmetric", 4, 3, 36, 3, -1, 1))
sketch1.addConstraint(Sketcher.Constraint("Symmetric", 6, 3, 38, 3, -1, 1))
sketch1.addConstraint(Sketcher.Constraint("Symmetric", 8, 3, 40, 3, -1, 1))
sketch1.addConstraint(Sketcher.Constraint("Symmetric", 10, 3, 42, 3, -1, 1))
sketch1.addConstraint(Sketcher.Constraint("Symmetric", 12, 3, 44, 3, -1, 1))
sketch1.addConstraint(Sketcher.Constraint("Symmetric", 14, 3, 46, 3, -1, 1))
sketch1.addConstraint(Sketcher.Constraint("Symmetric", 16, 3, 48, 3, -1, 1))
sketch1.addConstraint(Sketcher.Constraint("Symmetric", 18, 3, 50, 3, -1, 1))
sketch1.addConstraint(Sketcher.Constraint("Symmetric", 20, 3, 52, 3, -1, 1))
sketch1.addConstraint(Sketcher.Constraint("Symmetric", 22, 3, 54, 3, -1, 1))
sketch1.addConstraint(Sketcher.Constraint("Symmetric", 24, 3, 56, 3, -1, 1))
sketch1.addConstraint(Sketcher.Constraint("Symmetric", 26, 3, 58, 3, -1, 1))
sketch1.addConstraint(Sketcher.Constraint("Symmetric", 28, 3, 60, 3, -1, 1))
sketch1.addConstraint(Sketcher.Constraint("Symmetric", 30, 3, 62, 3, -1, 1))
sketch1.addConstraint(Sketcher.Constraint("Symmetric", 16, 3, 18, 3, -2))
sketch1.addConstraint(Sketcher.Constraint("Symmetric", 14, 3, 20, 3, -2))
sketch1.addConstraint(Sketcher.Constraint("Symmetric", 12, 3, 22, 3, -2))
sketch1.addConstraint(Sketcher.Constraint("Symmetric", 10, 3, 24, 3, -2))
sketch1.addConstraint(Sketcher.Constraint("Symmetric", 8, 3, 26, 3, -2))
sketch1.addConstraint(Sketcher.Constraint("Symmetric", 6, 3, 28, 3, -2))
sketch1.addConstraint(Sketcher.Constraint("Symmetric", 4, 3, 30, 3, -2))
sketch1.addConstraint(Sketcher.Constraint("Symmetric", 2, 3, 32, 3, -2))
sketch1.addConstraint(Sketcher.Constraint("Radius", 3, Q("8.100001 mm")))
sketch1.addConstraint(Sketcher.Constraint("Radius", 0, Q("2.88 mm")))
sketch1.addConstraint(Sketcher.Constraint("Radius", 1, Q("6.074 mm")))
sketch1.addConstraint(Sketcher.Constraint("DistanceX", 6, 3, -1, 1, Q("4.152601 mm")))
sketch1.addConstraint(Sketcher.Constraint("DistanceY", -1, 1, 12, 3, Q("4.152601 mm")))
sketch1.addConstraint(Sketcher.Constraint("DistanceY", -1, 1, 8, 1, Q("3.948902 mm")))
sketch1.addConstraint(Sketcher.Constraint("DistanceX", 9, 1, -1, 1, Q("3.948902 mm")))
sketch1.addConstraint(Sketcher.Constraint("DistanceX", 0, 3, -1, 1, Q("5.880612 mm")))
sketch1.addConstraint(Sketcher.Constraint("DistanceY", 4, 3, -1, 1, Q("0.840689 mm")))
sketch1.addConstraint(Sketcher.Constraint("DistanceX", -1, 1, 14, 3, Q("0.840689 mm")))
sketch1.addConstraint(Sketcher.Constraint("DistanceY", -1, 1, 16, 3, Q("5.880612 mm")))
sketch1.addConstraint(Sketcher.Constraint("DistanceY", 0, 1, -1, 1, Q("0.471112 mm")))
sketch1.addConstraint(Sketcher.Constraint("DistanceY", -1, 1, 3, 1, Q("1.782869 mm")))
sketch1.addConstraint(Sketcher.Constraint("DistanceX", 6, 1, -1, 1, Q("6.847779 mm")))
sketch1.addConstraint(Sketcher.Constraint("DistanceX", 11, 1, -1, 1, Q("4.326422 mm")))
sketch1.addConstraint(Sketcher.Constraint("DistanceX", 14, 1, -1, 1, Q("1.782869 mm")))
sketch1.addConstraint(Sketcher.Constraint("DistanceX", 15, 1, -1, 1, Q("1.376561 mm")))
sketch1.addConstraint(Sketcher.Constraint("DistanceX", 8, 3, -1, 1, Q("6.524048 mm")))
sketch1.addConstraint(Sketcher.Constraint("DistanceX", 10, 3, -1, 1, Q("1.792393 mm")))
pad1 = body.newObject("PartDesign::Pad", "Pad")
pad1.Profile = sketch1
pad1.Length = 10
pad1.Reversed = True

# Sketch on XZ plane
sketch2 = body.newObject("Sketcher::SketchObject", "Sketch001")
sketch2.AttachmentSupport = (doc.getObject("XZ_Plane"), [""])
sketch2.MapMode = "FlatFace"
sketch2.AttachmentOffset = App.Placement(V(0, 0, -10), App.Rotation())
sketch2.addGeometry(Part.Circle(V(0, 0, 0), V(0, 0, 1), 3), False)
sketch2.addConstraint(Sketcher.Constraint("Coincident", 0, 3, -1, 1))
sketch2.addConstraint(Sketcher.Constraint("Diameter", 0, Q("6 mm")))
pocket1 = body.newObject("PartDesign::Pocket", "Pocket")
pocket1.Profile = sketch2
pocket1.Length = 10
pocket1.Reversed = True

doc.recompute()
